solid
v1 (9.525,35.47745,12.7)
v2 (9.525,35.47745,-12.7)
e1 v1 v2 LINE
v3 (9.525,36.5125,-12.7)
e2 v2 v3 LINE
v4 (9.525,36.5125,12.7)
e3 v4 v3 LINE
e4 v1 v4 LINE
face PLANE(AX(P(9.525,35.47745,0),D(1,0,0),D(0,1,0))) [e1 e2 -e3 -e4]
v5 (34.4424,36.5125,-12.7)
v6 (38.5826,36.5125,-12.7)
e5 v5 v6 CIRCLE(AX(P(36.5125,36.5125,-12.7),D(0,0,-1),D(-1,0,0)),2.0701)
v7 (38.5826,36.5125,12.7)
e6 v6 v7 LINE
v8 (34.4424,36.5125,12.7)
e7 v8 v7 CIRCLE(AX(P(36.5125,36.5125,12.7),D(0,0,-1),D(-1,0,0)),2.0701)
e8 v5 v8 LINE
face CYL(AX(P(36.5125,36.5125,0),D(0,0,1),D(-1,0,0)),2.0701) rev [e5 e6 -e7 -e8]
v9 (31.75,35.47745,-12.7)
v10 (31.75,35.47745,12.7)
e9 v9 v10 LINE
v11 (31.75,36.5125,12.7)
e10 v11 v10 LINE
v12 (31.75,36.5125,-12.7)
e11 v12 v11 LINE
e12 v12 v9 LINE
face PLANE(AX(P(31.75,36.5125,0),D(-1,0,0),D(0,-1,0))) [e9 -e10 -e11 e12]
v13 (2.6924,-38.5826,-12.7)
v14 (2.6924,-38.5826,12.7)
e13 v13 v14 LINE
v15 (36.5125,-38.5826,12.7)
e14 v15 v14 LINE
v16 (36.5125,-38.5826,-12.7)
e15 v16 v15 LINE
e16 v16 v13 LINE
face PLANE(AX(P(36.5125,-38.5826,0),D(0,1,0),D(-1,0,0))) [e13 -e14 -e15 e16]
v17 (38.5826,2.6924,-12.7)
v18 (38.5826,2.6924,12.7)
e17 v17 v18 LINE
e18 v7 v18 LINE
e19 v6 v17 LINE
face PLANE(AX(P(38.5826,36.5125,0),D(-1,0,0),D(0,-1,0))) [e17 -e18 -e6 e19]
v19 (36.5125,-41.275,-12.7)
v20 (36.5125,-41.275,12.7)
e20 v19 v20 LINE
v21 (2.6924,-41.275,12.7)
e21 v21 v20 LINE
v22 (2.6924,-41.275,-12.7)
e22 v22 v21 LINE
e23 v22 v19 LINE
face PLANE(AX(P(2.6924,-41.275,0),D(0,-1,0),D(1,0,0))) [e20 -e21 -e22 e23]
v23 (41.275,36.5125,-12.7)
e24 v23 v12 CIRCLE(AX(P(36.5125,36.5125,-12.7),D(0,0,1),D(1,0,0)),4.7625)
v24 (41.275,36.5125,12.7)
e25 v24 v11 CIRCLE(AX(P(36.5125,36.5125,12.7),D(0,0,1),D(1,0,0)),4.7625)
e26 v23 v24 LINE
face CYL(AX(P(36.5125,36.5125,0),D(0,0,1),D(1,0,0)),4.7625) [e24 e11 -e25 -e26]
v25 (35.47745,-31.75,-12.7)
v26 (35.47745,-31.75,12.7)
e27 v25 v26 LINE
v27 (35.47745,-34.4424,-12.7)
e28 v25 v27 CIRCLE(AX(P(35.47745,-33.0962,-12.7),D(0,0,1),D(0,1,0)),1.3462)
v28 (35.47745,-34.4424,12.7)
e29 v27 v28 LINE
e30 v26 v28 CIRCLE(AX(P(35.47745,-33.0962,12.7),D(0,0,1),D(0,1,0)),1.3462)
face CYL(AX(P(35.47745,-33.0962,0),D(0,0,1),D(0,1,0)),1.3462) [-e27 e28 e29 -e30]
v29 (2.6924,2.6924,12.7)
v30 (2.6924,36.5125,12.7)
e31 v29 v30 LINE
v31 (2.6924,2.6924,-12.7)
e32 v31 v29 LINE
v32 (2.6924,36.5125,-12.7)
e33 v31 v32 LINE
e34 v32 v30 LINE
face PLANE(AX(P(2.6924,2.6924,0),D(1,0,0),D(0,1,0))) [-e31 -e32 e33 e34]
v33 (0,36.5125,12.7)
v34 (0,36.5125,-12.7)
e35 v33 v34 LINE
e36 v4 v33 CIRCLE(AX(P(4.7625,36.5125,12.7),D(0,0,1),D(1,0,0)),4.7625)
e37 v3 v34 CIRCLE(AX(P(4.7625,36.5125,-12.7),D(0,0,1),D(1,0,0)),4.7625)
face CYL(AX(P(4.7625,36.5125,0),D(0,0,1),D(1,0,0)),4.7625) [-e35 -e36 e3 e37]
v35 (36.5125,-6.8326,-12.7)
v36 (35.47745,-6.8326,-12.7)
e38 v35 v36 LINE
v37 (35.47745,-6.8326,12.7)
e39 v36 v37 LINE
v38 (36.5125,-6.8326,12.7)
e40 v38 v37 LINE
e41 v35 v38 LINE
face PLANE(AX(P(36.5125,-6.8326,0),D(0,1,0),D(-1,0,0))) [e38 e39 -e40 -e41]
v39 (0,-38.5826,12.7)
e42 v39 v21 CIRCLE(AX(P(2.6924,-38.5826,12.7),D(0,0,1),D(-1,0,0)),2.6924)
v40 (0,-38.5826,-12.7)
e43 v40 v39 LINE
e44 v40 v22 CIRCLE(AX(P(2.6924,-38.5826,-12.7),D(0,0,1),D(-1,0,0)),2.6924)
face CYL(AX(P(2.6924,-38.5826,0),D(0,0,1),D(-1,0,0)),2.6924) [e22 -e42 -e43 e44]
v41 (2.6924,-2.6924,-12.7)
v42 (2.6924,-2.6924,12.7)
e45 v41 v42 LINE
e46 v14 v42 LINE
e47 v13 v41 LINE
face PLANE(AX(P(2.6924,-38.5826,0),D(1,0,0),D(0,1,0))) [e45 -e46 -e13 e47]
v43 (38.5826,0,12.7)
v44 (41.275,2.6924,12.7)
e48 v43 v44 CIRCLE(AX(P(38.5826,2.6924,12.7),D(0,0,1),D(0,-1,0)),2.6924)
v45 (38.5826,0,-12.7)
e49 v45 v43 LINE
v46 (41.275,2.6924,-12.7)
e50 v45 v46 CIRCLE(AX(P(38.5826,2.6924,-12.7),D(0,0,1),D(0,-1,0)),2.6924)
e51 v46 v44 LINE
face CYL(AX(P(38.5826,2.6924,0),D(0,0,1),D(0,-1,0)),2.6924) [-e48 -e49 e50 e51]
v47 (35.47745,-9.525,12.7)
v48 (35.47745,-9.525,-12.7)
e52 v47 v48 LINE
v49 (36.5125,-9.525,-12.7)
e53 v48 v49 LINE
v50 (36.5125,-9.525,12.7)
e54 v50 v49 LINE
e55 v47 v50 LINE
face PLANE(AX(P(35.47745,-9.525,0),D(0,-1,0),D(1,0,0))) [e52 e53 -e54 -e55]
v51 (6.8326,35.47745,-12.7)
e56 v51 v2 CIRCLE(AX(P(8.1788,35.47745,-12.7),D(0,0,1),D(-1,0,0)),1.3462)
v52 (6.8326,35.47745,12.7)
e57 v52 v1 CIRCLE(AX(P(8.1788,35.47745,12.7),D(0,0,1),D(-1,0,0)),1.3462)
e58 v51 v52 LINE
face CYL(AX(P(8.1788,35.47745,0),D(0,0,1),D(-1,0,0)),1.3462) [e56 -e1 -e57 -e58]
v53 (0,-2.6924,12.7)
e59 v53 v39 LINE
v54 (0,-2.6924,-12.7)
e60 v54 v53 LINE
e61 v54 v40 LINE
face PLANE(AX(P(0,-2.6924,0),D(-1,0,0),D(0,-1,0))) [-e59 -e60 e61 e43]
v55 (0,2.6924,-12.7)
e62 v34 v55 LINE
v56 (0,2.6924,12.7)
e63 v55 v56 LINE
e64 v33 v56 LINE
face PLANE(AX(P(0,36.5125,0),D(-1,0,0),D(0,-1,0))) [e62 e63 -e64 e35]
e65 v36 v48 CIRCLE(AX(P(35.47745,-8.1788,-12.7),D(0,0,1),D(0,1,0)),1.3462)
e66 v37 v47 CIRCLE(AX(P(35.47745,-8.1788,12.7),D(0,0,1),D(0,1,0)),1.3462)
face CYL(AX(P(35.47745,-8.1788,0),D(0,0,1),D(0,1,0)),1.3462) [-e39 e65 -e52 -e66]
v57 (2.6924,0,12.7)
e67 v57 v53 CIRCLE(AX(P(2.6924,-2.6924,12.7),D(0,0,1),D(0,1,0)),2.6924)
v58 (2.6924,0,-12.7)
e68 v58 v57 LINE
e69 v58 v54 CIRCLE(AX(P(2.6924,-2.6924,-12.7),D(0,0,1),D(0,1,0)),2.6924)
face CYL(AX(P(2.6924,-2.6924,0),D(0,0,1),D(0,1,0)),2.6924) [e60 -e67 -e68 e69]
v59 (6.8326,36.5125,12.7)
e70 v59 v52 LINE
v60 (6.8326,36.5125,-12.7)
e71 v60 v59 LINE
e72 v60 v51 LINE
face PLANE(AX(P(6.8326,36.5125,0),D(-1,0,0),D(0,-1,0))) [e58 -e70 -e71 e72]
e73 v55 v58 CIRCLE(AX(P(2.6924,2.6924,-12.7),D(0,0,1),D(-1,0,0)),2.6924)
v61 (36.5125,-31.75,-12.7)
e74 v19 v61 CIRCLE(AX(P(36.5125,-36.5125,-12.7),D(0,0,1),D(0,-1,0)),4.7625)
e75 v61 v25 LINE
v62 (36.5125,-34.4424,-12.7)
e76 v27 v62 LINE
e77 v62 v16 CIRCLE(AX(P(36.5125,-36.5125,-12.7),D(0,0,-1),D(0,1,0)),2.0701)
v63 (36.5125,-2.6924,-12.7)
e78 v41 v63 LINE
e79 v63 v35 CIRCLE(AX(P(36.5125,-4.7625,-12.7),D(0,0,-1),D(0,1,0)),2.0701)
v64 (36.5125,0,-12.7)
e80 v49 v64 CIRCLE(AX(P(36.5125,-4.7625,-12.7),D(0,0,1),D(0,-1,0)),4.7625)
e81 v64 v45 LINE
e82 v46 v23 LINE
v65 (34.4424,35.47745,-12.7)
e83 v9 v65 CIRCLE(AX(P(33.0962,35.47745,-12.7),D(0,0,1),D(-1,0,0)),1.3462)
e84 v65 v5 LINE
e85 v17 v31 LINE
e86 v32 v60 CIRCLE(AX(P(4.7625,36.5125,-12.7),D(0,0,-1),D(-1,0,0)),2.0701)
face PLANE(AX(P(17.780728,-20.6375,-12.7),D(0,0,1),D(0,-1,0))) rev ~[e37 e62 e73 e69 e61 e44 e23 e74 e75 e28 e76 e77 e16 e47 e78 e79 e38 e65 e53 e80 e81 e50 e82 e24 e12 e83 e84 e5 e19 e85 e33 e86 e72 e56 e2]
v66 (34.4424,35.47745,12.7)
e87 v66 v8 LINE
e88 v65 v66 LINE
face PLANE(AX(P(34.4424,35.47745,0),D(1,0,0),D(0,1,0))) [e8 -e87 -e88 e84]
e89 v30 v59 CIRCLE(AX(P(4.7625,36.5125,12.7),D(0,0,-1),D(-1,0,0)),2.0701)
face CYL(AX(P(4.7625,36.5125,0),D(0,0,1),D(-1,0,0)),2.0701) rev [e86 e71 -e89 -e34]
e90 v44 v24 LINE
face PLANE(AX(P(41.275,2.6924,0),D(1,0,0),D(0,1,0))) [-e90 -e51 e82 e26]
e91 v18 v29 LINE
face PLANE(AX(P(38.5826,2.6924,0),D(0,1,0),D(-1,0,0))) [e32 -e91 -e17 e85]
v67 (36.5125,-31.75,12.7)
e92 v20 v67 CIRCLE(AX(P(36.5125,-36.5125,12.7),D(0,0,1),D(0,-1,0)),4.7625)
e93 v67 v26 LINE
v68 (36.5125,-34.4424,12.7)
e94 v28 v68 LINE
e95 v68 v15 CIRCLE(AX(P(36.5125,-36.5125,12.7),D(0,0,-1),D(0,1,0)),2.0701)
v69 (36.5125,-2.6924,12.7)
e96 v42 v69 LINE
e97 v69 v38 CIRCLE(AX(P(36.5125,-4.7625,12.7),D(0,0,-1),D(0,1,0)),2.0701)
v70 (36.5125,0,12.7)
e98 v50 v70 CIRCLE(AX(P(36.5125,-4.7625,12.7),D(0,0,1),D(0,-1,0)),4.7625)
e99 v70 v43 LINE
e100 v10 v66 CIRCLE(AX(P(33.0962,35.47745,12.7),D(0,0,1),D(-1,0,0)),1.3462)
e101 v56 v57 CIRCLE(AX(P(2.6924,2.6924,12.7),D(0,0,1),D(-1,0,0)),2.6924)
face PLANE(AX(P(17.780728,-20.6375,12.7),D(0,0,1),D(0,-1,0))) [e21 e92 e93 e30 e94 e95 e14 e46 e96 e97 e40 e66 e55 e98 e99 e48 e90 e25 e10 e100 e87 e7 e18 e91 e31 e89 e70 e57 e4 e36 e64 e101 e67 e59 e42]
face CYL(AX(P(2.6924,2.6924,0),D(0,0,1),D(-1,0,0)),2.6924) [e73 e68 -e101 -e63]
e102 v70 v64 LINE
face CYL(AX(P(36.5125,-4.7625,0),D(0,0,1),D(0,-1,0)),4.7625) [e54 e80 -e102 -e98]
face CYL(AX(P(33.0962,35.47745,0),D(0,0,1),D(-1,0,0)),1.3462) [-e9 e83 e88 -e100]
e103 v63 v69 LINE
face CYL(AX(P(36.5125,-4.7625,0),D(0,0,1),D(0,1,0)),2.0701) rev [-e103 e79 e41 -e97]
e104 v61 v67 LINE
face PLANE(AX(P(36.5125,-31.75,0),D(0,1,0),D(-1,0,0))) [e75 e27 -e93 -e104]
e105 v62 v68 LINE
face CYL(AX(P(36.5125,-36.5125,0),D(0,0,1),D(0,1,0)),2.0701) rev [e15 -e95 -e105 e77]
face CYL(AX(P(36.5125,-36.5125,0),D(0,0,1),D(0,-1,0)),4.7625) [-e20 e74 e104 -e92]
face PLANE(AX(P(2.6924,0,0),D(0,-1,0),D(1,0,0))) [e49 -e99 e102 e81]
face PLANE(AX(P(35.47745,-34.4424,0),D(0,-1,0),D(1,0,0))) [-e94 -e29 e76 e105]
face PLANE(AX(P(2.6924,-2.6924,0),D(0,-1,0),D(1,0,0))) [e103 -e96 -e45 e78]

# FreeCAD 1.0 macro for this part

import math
import FreeCAD as App
import Part
import Sketcher

V = App.Vector
Q = App.Units.Quantity

doc = App.newDocument("Part")
body = doc.addObject("PartDesign::Body", "Body")

# Sketch on XY plane
sketch1 = body.newObject("Sketcher::SketchObject", "Sketch")
sketch1.AttachmentSupport = (doc.getObject("XY_Plane"), [""])
sketch1.MapMode = "FlatFace"
sketch1.addGeometry(Part.LineSegment(V(0, 36.5, 0), V(0, 2.7, 0)), False)
sketch1.addGeometry(Part.ArcOfCircle(Part.Circle(V(2.7, 2.7, 0), V(0, 0, 1), 2.7), math.radians(180), math.radians(270)), False)
sketch1.addGeometry(Part.LineSegment(V(2.7, 0, 0), V(38.6, 0, 0)), False)
sketch1.addGeometry(Part.ArcOfCircle(Part.Circle(V(38.6, 2.7, 0), V(0, 0, 1), 2.7), math.radians(-90), math.radians(0)), False)
sketch1.addGeometry(Part.LineSegment(V(41.3, 2.7, 0), V(41.3, 36.5, 0)), False)
sketch1.addGeometry(Part.ArcOfCircle(Part.Circle(V(36.5, 36.5, 0), V(0, 0, 1), 4.8), math.radians(0), math.radians(180)), False)
sketch1.addGeometry(Part.LineSegment(V(31.8, 36.5, 0), V(31.8, 35.5, 0)), False)
sketch1.addGeometry(Part.ArcOfCircle(Part.Circle(V(33.1, 35.5, 0), V(0, 0, 1), 1.3), math.radians(180), math.radians(360)), False)
sketch1.addGeometry(Part.LineSegment(V(34.4, 35.5, 0), V(34.4, 36.5, 0)), False)
sketch1.addGeometry(Part.ArcOfCircle(Part.Circle(V(36.5, 36.5, 0), V(0, 0, 1), 2.1), math.radians(0), math.radians(180)), False)
sketch1.addGeometry(Part.LineSegment(V(38.6, 36.5, 0), V(38.6, 2.7, 0)), False)
sketch1.addGeometry(Part.LineSegment(V(38.6, 2.7, 0), V(2.7, 2.7, 0)), False)
sketch1.addGeometry(Part.LineSegment(V(2.7, 2.7, 0), V(2.7, 36.5, 0)), False)
sketch1.addGeometry(Part.ArcOfCircle(Part.Circle(V(4.8, 36.5, 0), V(0, 0, 1), 2.1), math.radians(0), math.radians(180)), False)
sketch1.addGeometry(Part.LineSegment(V(6.8, 36.5, 0), V(6.8, 35.5, 0)), False)
sketch1.addGeometry(Part.ArcOfCircle(Part.Circle(V(8.2, 35.5, 0), V(0, 0, 1), 1.3), math.radians(180), math.radians(360)), False)
sketch1.addGeometry(Part.LineSegment(V(9.5, 35.5, 0), V(9.5, 36.5, 0)), False)
sketch1.addGeometry(Part.ArcOfCircle(Part.Circle(V(4.8, 36.5, 0), V(0, 0, 1), 4.8), math.radians(0), math.radians(180)), False)
sketch1.addConstraint(Sketcher.Constraint("Tangent", 0, 2, 1, 1))
sketch1.addConstraint(Sketcher.Constraint("Tangent", 1, 2, 2, 1))
sketch1.addConstraint(Sketcher.Constraint("Tangent", 2, 2, 3, 1))
sketch1.addConstraint(Sketcher.Constraint("Tangent", 3, 2, 4, 1))
sketch1.addConstraint(Sketcher.Constraint("Tangent", 4, 2, 5, 1))
sketch1.addConstraint(Sketcher.Constraint("Tangent", 5, 2, 6, 1))
sketch1.addConstraint(Sketcher.Constraint("Tangent", 6, 2, 7, 1))
sketch1.addConstraint(Sketcher.Constraint("Tangent", 7, 2, 8, 1))
sketch1.addConstraint(Sketcher.Constraint("Tangent", 8, 2, 9, 2))
sketch1.addConstraint(Sketcher.Constraint("Tangent", 9, 1, 10, 1))
sketch1.addConstraint(Sketcher.Constraint("Coincident", 10, 2, 11, 1))
sketch1.addConstraint(Sketcher.Constraint("Coincident", 11, 2, 12, 1))
sketch1.addConstraint(Sketcher.Constraint("Tangent", 12, 2, 13, 2))
sketch1.addConstraint(Sketcher.Constraint("Tangent", 13, 1, 14, 1))
sketch1.addConstraint(Sketcher.Constraint("Tangent", 14, 2, 15, 1))
sketch1.addConstraint(Sketcher.Constraint("Tangent", 15, 2, 16, 1))
sketch1.addConstraint(Sketcher.Constraint("Tangent", 16, 2, 17, 1))
sketch1.addConstraint(Sketcher.Constraint("Tangent", 17, 2, 0, 1))
sketch1.addConstraint(Sketcher.Constraint("Vertical", 0))
sketch1.addConstraint(Sketcher.Constraint("Horizontal", 2))
sketch1.addConstraint(Sketcher.Constraint("Vertical", 4))
sketch1.addConstraint(Sketcher.Constraint("Vertical", 6))
sketch1.addConstraint(Sketcher.Constraint("Vertical", 8))
sketch1.addConstraint(Sketcher.Constraint("Vertical", 10))
sketch1.addConstraint(Sketcher.Constraint("Horizontal", 11))
sketch1.addConstraint(Sketcher.Constraint("Vertical", 12))
sketch1.addConstraint(Sketcher.Constraint("Vertical", 14))
sketch1.addConstraint(Sketcher.Constraint("Vertical", 16))
sketch1.addConstraint(Sketcher.Constraint("Coincident", 9, 3, 5, 3))
sketch1.addConstraint(Sketcher.Constraint("Coincident", 17, 3, 13, 3))
sketch1.addConstraint(Sketcher.Constraint("Coincident", 10, 2, 3, 3))
sketch1.addConstraint(Sketcher.Constraint("Coincident", 11, 2, 1, 3))
sketch1.addConstraint(Sketcher.Constraint("Equal", 9, 13))
sketch1.addConstraint(Sketcher.Constraint("PointOnObject", 0, 2, -2))
sketch1.addConstraint(Sketcher.Constraint("PointOnObject", 1, 2, -1))
sketch1.addConstraint(Sketcher.Constraint("Horizontal", 9, 3, 13, 3))
sketch1.addConstraint(Sketcher.Constraint("Horizontal", 7, 3, 15, 3))
sketch1.addConstraint(Sketcher.Constraint("Radius", 1, Q("0.106 in")))
sketch1.addConstraint(Sketcher.Constraint("Radius", 5, Q("0.1875 in")))
sketch1.addConstraint(Sketcher.Constraint("DistanceX", 2, 1, 2, 2, Q("1.413 in")))
sketch1.addConstraint(Sketcher.Constraint("DistanceY", 0, 2, 0, 1, Q("1.3315 in")))
sketch1.addConstraint(Sketcher.Constraint("DistanceY", 6, 2, 6, 1, 1.03505))
pad1 = body.newObject("PartDesign::Pad", "Pad")
pad1.Profile = sketch1
pad1.Length = Q("1 in")
pad1.Midplane = True
doc.recompute()

polarpattern = body.newObject("PartDesign::PolarPattern", "PolarPattern")
polarpattern.Originals = [pad1]
polarpattern.Axis = (doc.getObject("Z_Axis"), [""])
polarpattern.Angle = 270
polarpattern.Occurrences = 2
body.Tip = polarpattern

doc.recompute()
